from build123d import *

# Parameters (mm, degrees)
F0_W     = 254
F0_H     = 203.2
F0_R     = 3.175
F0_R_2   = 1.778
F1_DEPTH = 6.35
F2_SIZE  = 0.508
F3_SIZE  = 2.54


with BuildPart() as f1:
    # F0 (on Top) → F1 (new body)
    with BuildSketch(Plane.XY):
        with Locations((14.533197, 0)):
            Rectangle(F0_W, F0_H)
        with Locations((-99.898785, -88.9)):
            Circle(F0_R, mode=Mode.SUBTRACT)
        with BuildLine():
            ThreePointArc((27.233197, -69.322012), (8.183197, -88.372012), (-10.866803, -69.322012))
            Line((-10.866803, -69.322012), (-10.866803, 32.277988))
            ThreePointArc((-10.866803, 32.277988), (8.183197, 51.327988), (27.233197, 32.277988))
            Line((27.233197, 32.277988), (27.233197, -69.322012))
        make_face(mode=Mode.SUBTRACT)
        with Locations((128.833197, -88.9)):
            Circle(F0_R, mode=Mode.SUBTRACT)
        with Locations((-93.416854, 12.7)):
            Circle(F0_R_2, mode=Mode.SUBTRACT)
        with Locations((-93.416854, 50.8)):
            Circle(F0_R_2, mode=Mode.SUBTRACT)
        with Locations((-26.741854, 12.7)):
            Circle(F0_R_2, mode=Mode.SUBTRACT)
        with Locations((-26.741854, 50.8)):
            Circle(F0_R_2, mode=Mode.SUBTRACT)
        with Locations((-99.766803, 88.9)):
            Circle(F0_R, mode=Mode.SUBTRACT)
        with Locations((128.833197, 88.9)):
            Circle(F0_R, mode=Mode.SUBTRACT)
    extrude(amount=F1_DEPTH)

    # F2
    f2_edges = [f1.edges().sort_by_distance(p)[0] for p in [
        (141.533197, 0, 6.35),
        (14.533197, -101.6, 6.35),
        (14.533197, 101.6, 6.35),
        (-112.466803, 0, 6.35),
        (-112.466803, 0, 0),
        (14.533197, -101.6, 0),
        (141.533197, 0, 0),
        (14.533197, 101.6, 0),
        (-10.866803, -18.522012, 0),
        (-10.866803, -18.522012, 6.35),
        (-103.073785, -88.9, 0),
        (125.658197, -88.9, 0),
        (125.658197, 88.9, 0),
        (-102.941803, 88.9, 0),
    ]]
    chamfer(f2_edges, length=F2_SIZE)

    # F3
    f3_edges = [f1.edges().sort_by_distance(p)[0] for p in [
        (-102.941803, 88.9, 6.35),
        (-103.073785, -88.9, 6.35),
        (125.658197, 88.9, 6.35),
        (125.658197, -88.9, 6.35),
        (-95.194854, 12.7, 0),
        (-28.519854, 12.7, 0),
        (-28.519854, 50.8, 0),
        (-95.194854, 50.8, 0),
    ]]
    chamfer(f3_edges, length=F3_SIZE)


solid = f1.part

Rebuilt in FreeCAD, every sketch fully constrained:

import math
import FreeCAD as App
import Part
import Sketcher
Q = App.Units.Quantity


def edges_at(feature, points):
    """Names of the edges that pass closest to the given points."""
    edges = feature.Shape.Edges
    near = lambda p: min(range(len(edges)), key=lambda i: edges[i].distToShape(Part.Vertex(*p))[0])
    return sorted({f"Edge{near(p) + 1}" for p in points})


def add_polygon(sketch, points):
    """Adds a closed chain of lines whose ends are joined by coincident constraints."""
    first, n = sketch.GeometryCount, len(points)
    for a, b in zip(points, points[1:] + points[:1]):
        sketch.addGeometry(Part.LineSegment(App.Vector(*a, 0), App.Vector(*b, 0)), False)
    for i in range(n):
        sketch.addConstraint(Sketcher.Constraint("Coincident", first + i, 2, first + (i + 1) % n, 1))

doc = App.newDocument("Part")
body = doc.addObject("PartDesign::Body", "Body")

# Sketch on XY plane
sketch1 = body.newObject("Sketcher::SketchObject", "Sketch")
sketch1.AttachmentSupport = (doc.getObject("XY_Plane"), [""])
sketch1.MapMode = "FlatFace"
add_polygon(sketch1, [(-112.466803, 101.6), (-112.466803, -101.6), (141.533197, -101.6), (141.533197, 101.6)])  # lines 0-3
sketch1.addGeometry(Part.Circle(App.Vector(-99.898785, -88.9, 0), App.Vector(0, 0, 1), 3.175), False)  # 4
sketch1.addGeometry(Part.LineSegment(App.Vector(27.233197, 32.277988, 0), App.Vector(27.233197, -69.322012, 0)), False)  # 5
sketch1.addGeometry(Part.ArcOfCircle(Part.Circle(App.Vector(8.183197, -69.322012, 0), App.Vector(0, 0, 1), 19.05), math.radians(180), math.radians(360)), False)  # 6
sketch1.addGeometry(Part.LineSegment(App.Vector(-10.866803, -69.322012, 0), App.Vector(-10.866803, 32.277988, 0)), False)  # 7
sketch1.addGeometry(Part.ArcOfCircle(Part.Circle(App.Vector(8.183197, 32.277988, 0), App.Vector(0, 0, 1), 19.05), math.radians(0), math.radians(180)), False)  # 8
sketch1.addGeometry(Part.Circle(App.Vector(128.833197, -88.9, 0), App.Vector(0, 0, 1), 3.175), False)  # 9
sketch1.addGeometry(Part.Circle(App.Vector(-93.416854, 12.7, 0), App.Vector(0, 0, 1), 1.778), False)  # 10
sketch1.addGeometry(Part.Circle(App.Vector(-26.741854, 12.7, 0), App.Vector(0, 0, 1), 1.778), False)  # 11
sketch1.addGeometry(Part.Circle(App.Vector(-93.416854, 50.8, 0), App.Vector(0, 0, 1), 1.778), False)  # 12
sketch1.addGeometry(Part.Circle(App.Vector(-99.766803, 88.9, 0), App.Vector(0, 0, 1), 3.175), False)  # 13
sketch1.addGeometry(Part.Circle(App.Vector(-26.741854, 50.8, 0), App.Vector(0, 0, 1), 1.778), False)  # 14
sketch1.addGeometry(Part.Circle(App.Vector(128.833197, 88.9, 0), App.Vector(0, 0, 1), 3.175), False)  # 15
sketch1.addConstraint([
    Sketcher.Constraint("Tangent", 5, 2, 6, 2),
    Sketcher.Constraint("Tangent", 6, 1, 7, 1),
    Sketcher.Constraint("Tangent", 7, 2, 8, 2),
    Sketcher.Constraint("Tangent", 8, 1, 5, 1),
    Sketcher.Constraint("Vertical", 0),
    Sketcher.Constraint("Horizontal", 1),
    Sketcher.Constraint("Vertical", 2),
    Sketcher.Constraint("Horizontal", 3),
    Sketcher.Constraint("Vertical", 5),
    Sketcher.Constraint("Vertical", 7),
    Sketcher.Constraint("Equal", 4, 9),
    Sketcher.Constraint("Equal", 10, 11),
    Sketcher.Constraint("Equal", 11, 12),
    Sketcher.Constraint("Equal", 9, 13),
    Sketcher.Constraint("Equal", 12, 14),
    Sketcher.Constraint("Equal", 13, 15),
    Sketcher.Constraint("Symmetric", 9, 3, 15, 3, -1),
    Sketcher.Constraint("Horizontal", 4, 3, 9, 3),
    Sketcher.Constraint("Horizontal", 10, 3, 11, 3),
    Sketcher.Constraint("Horizontal", 12, 3, 14, 3),
    Sketcher.Constraint("Horizontal", 13, 3, 15, 3),
    Sketcher.Constraint("Vertical", 10, 3, 12, 3),
    Sketcher.Constraint("Vertical", 11, 3, 14, 3),
    Sketcher.Constraint("Diameter", 4, Q("0.25 in")),
    Sketcher.Constraint("Diameter", 10, Q("0.14 in")),
    Sketcher.Constraint("DistanceX", 1, 1, 1, 2, Q("10 in")),
    Sketcher.Constraint("DistanceY", 0, 2, 0, 1, Q("8 in")),
    Sketcher.Constraint("DistanceY", 5, 2, 5, 1, Q("4 in")),
    Sketcher.Constraint("Radius", 6, Q("0.75 in")),
    Sketcher.Constraint("DistanceY", -1, 1, 12, 3, Q("2 in")),
    Sketcher.Constraint("DistanceY", 0, 2, -1, 1, Q("4 in")),
    Sketcher.Constraint("DistanceY", 4, 3, 10, 3, Q("4 in")),
    Sketcher.Constraint("DistanceY", 10, 3, 13, 3, Q("3 in")),
    Sketcher.Constraint("DistanceX", 5, 2, 9, 3, Q("4 in")),
    Sketcher.Constraint("DistanceX", 9, 3, 1, 2, Q("0.5 in")),
    Sketcher.Constraint("DistanceX", 3, 2, 13, 3, Q("0.5 in")),
    Sketcher.Constraint("DistanceX", 10, 3, 11, 3, Q("2.625 in")),
    Sketcher.Constraint("DistanceY", 6, 3, -1, 1, 69.322012),
    Sketcher.Constraint("DistanceX", 4, 3, 10, 3, 6.481931),
    Sketcher.Constraint("DistanceX", 10, 3, 8, 3, 101.600051),
    Sketcher.Constraint("DistanceX", 4, 3, -1, 1, 99.898785),
])
pad1 = body.newObject("PartDesign::Pad", "Pad")
pad1.Profile = sketch1
pad1.Length = Q("0.25 in")
doc.recompute()

chamfer = body.newObject("PartDesign::Chamfer", "Chamfer")
chamfer.Base = (pad1, edges_at(pad1, [
    (141.533, 0, 6.35),
    (14.533, -101.6, 6.35),
    (14.533, 101.6, 6.35),
    (-112.467, 0, 6.35),
    (-112.467, 0, 0),
    (14.533, -101.6, 0),
    (141.533, 0, 0),
    (14.533, 101.6, 0),
    (-10.867, -18.522, 0),
    (-10.867, -18.522, 6.35),
    (-103.074, -88.9, 0),
    (125.658, -88.9, 0),
    (125.658, 88.9, 0),
    (-102.942, 88.9, 0),
]))
chamfer.Size = Q("0.02 in")
doc.recompute()

chamfer2 = body.newObject("PartDesign::Chamfer", "Chamfer001")
chamfer2.Base = (chamfer, edges_at(chamfer, [
    (-102.942, 88.9, 6.35),
    (-103.074, -88.9, 6.35),
    (125.658, 88.9, 6.35),
    (125.658, -88.9, 6.35),
    (-95.195, 12.7, 0),
    (-28.52, 12.7, 0),
    (-28.52, 50.8, 0),
    (-95.195, 50.8, 0),
]))
chamfer2.Size = Q("0.1 in")

doc.recompute()
